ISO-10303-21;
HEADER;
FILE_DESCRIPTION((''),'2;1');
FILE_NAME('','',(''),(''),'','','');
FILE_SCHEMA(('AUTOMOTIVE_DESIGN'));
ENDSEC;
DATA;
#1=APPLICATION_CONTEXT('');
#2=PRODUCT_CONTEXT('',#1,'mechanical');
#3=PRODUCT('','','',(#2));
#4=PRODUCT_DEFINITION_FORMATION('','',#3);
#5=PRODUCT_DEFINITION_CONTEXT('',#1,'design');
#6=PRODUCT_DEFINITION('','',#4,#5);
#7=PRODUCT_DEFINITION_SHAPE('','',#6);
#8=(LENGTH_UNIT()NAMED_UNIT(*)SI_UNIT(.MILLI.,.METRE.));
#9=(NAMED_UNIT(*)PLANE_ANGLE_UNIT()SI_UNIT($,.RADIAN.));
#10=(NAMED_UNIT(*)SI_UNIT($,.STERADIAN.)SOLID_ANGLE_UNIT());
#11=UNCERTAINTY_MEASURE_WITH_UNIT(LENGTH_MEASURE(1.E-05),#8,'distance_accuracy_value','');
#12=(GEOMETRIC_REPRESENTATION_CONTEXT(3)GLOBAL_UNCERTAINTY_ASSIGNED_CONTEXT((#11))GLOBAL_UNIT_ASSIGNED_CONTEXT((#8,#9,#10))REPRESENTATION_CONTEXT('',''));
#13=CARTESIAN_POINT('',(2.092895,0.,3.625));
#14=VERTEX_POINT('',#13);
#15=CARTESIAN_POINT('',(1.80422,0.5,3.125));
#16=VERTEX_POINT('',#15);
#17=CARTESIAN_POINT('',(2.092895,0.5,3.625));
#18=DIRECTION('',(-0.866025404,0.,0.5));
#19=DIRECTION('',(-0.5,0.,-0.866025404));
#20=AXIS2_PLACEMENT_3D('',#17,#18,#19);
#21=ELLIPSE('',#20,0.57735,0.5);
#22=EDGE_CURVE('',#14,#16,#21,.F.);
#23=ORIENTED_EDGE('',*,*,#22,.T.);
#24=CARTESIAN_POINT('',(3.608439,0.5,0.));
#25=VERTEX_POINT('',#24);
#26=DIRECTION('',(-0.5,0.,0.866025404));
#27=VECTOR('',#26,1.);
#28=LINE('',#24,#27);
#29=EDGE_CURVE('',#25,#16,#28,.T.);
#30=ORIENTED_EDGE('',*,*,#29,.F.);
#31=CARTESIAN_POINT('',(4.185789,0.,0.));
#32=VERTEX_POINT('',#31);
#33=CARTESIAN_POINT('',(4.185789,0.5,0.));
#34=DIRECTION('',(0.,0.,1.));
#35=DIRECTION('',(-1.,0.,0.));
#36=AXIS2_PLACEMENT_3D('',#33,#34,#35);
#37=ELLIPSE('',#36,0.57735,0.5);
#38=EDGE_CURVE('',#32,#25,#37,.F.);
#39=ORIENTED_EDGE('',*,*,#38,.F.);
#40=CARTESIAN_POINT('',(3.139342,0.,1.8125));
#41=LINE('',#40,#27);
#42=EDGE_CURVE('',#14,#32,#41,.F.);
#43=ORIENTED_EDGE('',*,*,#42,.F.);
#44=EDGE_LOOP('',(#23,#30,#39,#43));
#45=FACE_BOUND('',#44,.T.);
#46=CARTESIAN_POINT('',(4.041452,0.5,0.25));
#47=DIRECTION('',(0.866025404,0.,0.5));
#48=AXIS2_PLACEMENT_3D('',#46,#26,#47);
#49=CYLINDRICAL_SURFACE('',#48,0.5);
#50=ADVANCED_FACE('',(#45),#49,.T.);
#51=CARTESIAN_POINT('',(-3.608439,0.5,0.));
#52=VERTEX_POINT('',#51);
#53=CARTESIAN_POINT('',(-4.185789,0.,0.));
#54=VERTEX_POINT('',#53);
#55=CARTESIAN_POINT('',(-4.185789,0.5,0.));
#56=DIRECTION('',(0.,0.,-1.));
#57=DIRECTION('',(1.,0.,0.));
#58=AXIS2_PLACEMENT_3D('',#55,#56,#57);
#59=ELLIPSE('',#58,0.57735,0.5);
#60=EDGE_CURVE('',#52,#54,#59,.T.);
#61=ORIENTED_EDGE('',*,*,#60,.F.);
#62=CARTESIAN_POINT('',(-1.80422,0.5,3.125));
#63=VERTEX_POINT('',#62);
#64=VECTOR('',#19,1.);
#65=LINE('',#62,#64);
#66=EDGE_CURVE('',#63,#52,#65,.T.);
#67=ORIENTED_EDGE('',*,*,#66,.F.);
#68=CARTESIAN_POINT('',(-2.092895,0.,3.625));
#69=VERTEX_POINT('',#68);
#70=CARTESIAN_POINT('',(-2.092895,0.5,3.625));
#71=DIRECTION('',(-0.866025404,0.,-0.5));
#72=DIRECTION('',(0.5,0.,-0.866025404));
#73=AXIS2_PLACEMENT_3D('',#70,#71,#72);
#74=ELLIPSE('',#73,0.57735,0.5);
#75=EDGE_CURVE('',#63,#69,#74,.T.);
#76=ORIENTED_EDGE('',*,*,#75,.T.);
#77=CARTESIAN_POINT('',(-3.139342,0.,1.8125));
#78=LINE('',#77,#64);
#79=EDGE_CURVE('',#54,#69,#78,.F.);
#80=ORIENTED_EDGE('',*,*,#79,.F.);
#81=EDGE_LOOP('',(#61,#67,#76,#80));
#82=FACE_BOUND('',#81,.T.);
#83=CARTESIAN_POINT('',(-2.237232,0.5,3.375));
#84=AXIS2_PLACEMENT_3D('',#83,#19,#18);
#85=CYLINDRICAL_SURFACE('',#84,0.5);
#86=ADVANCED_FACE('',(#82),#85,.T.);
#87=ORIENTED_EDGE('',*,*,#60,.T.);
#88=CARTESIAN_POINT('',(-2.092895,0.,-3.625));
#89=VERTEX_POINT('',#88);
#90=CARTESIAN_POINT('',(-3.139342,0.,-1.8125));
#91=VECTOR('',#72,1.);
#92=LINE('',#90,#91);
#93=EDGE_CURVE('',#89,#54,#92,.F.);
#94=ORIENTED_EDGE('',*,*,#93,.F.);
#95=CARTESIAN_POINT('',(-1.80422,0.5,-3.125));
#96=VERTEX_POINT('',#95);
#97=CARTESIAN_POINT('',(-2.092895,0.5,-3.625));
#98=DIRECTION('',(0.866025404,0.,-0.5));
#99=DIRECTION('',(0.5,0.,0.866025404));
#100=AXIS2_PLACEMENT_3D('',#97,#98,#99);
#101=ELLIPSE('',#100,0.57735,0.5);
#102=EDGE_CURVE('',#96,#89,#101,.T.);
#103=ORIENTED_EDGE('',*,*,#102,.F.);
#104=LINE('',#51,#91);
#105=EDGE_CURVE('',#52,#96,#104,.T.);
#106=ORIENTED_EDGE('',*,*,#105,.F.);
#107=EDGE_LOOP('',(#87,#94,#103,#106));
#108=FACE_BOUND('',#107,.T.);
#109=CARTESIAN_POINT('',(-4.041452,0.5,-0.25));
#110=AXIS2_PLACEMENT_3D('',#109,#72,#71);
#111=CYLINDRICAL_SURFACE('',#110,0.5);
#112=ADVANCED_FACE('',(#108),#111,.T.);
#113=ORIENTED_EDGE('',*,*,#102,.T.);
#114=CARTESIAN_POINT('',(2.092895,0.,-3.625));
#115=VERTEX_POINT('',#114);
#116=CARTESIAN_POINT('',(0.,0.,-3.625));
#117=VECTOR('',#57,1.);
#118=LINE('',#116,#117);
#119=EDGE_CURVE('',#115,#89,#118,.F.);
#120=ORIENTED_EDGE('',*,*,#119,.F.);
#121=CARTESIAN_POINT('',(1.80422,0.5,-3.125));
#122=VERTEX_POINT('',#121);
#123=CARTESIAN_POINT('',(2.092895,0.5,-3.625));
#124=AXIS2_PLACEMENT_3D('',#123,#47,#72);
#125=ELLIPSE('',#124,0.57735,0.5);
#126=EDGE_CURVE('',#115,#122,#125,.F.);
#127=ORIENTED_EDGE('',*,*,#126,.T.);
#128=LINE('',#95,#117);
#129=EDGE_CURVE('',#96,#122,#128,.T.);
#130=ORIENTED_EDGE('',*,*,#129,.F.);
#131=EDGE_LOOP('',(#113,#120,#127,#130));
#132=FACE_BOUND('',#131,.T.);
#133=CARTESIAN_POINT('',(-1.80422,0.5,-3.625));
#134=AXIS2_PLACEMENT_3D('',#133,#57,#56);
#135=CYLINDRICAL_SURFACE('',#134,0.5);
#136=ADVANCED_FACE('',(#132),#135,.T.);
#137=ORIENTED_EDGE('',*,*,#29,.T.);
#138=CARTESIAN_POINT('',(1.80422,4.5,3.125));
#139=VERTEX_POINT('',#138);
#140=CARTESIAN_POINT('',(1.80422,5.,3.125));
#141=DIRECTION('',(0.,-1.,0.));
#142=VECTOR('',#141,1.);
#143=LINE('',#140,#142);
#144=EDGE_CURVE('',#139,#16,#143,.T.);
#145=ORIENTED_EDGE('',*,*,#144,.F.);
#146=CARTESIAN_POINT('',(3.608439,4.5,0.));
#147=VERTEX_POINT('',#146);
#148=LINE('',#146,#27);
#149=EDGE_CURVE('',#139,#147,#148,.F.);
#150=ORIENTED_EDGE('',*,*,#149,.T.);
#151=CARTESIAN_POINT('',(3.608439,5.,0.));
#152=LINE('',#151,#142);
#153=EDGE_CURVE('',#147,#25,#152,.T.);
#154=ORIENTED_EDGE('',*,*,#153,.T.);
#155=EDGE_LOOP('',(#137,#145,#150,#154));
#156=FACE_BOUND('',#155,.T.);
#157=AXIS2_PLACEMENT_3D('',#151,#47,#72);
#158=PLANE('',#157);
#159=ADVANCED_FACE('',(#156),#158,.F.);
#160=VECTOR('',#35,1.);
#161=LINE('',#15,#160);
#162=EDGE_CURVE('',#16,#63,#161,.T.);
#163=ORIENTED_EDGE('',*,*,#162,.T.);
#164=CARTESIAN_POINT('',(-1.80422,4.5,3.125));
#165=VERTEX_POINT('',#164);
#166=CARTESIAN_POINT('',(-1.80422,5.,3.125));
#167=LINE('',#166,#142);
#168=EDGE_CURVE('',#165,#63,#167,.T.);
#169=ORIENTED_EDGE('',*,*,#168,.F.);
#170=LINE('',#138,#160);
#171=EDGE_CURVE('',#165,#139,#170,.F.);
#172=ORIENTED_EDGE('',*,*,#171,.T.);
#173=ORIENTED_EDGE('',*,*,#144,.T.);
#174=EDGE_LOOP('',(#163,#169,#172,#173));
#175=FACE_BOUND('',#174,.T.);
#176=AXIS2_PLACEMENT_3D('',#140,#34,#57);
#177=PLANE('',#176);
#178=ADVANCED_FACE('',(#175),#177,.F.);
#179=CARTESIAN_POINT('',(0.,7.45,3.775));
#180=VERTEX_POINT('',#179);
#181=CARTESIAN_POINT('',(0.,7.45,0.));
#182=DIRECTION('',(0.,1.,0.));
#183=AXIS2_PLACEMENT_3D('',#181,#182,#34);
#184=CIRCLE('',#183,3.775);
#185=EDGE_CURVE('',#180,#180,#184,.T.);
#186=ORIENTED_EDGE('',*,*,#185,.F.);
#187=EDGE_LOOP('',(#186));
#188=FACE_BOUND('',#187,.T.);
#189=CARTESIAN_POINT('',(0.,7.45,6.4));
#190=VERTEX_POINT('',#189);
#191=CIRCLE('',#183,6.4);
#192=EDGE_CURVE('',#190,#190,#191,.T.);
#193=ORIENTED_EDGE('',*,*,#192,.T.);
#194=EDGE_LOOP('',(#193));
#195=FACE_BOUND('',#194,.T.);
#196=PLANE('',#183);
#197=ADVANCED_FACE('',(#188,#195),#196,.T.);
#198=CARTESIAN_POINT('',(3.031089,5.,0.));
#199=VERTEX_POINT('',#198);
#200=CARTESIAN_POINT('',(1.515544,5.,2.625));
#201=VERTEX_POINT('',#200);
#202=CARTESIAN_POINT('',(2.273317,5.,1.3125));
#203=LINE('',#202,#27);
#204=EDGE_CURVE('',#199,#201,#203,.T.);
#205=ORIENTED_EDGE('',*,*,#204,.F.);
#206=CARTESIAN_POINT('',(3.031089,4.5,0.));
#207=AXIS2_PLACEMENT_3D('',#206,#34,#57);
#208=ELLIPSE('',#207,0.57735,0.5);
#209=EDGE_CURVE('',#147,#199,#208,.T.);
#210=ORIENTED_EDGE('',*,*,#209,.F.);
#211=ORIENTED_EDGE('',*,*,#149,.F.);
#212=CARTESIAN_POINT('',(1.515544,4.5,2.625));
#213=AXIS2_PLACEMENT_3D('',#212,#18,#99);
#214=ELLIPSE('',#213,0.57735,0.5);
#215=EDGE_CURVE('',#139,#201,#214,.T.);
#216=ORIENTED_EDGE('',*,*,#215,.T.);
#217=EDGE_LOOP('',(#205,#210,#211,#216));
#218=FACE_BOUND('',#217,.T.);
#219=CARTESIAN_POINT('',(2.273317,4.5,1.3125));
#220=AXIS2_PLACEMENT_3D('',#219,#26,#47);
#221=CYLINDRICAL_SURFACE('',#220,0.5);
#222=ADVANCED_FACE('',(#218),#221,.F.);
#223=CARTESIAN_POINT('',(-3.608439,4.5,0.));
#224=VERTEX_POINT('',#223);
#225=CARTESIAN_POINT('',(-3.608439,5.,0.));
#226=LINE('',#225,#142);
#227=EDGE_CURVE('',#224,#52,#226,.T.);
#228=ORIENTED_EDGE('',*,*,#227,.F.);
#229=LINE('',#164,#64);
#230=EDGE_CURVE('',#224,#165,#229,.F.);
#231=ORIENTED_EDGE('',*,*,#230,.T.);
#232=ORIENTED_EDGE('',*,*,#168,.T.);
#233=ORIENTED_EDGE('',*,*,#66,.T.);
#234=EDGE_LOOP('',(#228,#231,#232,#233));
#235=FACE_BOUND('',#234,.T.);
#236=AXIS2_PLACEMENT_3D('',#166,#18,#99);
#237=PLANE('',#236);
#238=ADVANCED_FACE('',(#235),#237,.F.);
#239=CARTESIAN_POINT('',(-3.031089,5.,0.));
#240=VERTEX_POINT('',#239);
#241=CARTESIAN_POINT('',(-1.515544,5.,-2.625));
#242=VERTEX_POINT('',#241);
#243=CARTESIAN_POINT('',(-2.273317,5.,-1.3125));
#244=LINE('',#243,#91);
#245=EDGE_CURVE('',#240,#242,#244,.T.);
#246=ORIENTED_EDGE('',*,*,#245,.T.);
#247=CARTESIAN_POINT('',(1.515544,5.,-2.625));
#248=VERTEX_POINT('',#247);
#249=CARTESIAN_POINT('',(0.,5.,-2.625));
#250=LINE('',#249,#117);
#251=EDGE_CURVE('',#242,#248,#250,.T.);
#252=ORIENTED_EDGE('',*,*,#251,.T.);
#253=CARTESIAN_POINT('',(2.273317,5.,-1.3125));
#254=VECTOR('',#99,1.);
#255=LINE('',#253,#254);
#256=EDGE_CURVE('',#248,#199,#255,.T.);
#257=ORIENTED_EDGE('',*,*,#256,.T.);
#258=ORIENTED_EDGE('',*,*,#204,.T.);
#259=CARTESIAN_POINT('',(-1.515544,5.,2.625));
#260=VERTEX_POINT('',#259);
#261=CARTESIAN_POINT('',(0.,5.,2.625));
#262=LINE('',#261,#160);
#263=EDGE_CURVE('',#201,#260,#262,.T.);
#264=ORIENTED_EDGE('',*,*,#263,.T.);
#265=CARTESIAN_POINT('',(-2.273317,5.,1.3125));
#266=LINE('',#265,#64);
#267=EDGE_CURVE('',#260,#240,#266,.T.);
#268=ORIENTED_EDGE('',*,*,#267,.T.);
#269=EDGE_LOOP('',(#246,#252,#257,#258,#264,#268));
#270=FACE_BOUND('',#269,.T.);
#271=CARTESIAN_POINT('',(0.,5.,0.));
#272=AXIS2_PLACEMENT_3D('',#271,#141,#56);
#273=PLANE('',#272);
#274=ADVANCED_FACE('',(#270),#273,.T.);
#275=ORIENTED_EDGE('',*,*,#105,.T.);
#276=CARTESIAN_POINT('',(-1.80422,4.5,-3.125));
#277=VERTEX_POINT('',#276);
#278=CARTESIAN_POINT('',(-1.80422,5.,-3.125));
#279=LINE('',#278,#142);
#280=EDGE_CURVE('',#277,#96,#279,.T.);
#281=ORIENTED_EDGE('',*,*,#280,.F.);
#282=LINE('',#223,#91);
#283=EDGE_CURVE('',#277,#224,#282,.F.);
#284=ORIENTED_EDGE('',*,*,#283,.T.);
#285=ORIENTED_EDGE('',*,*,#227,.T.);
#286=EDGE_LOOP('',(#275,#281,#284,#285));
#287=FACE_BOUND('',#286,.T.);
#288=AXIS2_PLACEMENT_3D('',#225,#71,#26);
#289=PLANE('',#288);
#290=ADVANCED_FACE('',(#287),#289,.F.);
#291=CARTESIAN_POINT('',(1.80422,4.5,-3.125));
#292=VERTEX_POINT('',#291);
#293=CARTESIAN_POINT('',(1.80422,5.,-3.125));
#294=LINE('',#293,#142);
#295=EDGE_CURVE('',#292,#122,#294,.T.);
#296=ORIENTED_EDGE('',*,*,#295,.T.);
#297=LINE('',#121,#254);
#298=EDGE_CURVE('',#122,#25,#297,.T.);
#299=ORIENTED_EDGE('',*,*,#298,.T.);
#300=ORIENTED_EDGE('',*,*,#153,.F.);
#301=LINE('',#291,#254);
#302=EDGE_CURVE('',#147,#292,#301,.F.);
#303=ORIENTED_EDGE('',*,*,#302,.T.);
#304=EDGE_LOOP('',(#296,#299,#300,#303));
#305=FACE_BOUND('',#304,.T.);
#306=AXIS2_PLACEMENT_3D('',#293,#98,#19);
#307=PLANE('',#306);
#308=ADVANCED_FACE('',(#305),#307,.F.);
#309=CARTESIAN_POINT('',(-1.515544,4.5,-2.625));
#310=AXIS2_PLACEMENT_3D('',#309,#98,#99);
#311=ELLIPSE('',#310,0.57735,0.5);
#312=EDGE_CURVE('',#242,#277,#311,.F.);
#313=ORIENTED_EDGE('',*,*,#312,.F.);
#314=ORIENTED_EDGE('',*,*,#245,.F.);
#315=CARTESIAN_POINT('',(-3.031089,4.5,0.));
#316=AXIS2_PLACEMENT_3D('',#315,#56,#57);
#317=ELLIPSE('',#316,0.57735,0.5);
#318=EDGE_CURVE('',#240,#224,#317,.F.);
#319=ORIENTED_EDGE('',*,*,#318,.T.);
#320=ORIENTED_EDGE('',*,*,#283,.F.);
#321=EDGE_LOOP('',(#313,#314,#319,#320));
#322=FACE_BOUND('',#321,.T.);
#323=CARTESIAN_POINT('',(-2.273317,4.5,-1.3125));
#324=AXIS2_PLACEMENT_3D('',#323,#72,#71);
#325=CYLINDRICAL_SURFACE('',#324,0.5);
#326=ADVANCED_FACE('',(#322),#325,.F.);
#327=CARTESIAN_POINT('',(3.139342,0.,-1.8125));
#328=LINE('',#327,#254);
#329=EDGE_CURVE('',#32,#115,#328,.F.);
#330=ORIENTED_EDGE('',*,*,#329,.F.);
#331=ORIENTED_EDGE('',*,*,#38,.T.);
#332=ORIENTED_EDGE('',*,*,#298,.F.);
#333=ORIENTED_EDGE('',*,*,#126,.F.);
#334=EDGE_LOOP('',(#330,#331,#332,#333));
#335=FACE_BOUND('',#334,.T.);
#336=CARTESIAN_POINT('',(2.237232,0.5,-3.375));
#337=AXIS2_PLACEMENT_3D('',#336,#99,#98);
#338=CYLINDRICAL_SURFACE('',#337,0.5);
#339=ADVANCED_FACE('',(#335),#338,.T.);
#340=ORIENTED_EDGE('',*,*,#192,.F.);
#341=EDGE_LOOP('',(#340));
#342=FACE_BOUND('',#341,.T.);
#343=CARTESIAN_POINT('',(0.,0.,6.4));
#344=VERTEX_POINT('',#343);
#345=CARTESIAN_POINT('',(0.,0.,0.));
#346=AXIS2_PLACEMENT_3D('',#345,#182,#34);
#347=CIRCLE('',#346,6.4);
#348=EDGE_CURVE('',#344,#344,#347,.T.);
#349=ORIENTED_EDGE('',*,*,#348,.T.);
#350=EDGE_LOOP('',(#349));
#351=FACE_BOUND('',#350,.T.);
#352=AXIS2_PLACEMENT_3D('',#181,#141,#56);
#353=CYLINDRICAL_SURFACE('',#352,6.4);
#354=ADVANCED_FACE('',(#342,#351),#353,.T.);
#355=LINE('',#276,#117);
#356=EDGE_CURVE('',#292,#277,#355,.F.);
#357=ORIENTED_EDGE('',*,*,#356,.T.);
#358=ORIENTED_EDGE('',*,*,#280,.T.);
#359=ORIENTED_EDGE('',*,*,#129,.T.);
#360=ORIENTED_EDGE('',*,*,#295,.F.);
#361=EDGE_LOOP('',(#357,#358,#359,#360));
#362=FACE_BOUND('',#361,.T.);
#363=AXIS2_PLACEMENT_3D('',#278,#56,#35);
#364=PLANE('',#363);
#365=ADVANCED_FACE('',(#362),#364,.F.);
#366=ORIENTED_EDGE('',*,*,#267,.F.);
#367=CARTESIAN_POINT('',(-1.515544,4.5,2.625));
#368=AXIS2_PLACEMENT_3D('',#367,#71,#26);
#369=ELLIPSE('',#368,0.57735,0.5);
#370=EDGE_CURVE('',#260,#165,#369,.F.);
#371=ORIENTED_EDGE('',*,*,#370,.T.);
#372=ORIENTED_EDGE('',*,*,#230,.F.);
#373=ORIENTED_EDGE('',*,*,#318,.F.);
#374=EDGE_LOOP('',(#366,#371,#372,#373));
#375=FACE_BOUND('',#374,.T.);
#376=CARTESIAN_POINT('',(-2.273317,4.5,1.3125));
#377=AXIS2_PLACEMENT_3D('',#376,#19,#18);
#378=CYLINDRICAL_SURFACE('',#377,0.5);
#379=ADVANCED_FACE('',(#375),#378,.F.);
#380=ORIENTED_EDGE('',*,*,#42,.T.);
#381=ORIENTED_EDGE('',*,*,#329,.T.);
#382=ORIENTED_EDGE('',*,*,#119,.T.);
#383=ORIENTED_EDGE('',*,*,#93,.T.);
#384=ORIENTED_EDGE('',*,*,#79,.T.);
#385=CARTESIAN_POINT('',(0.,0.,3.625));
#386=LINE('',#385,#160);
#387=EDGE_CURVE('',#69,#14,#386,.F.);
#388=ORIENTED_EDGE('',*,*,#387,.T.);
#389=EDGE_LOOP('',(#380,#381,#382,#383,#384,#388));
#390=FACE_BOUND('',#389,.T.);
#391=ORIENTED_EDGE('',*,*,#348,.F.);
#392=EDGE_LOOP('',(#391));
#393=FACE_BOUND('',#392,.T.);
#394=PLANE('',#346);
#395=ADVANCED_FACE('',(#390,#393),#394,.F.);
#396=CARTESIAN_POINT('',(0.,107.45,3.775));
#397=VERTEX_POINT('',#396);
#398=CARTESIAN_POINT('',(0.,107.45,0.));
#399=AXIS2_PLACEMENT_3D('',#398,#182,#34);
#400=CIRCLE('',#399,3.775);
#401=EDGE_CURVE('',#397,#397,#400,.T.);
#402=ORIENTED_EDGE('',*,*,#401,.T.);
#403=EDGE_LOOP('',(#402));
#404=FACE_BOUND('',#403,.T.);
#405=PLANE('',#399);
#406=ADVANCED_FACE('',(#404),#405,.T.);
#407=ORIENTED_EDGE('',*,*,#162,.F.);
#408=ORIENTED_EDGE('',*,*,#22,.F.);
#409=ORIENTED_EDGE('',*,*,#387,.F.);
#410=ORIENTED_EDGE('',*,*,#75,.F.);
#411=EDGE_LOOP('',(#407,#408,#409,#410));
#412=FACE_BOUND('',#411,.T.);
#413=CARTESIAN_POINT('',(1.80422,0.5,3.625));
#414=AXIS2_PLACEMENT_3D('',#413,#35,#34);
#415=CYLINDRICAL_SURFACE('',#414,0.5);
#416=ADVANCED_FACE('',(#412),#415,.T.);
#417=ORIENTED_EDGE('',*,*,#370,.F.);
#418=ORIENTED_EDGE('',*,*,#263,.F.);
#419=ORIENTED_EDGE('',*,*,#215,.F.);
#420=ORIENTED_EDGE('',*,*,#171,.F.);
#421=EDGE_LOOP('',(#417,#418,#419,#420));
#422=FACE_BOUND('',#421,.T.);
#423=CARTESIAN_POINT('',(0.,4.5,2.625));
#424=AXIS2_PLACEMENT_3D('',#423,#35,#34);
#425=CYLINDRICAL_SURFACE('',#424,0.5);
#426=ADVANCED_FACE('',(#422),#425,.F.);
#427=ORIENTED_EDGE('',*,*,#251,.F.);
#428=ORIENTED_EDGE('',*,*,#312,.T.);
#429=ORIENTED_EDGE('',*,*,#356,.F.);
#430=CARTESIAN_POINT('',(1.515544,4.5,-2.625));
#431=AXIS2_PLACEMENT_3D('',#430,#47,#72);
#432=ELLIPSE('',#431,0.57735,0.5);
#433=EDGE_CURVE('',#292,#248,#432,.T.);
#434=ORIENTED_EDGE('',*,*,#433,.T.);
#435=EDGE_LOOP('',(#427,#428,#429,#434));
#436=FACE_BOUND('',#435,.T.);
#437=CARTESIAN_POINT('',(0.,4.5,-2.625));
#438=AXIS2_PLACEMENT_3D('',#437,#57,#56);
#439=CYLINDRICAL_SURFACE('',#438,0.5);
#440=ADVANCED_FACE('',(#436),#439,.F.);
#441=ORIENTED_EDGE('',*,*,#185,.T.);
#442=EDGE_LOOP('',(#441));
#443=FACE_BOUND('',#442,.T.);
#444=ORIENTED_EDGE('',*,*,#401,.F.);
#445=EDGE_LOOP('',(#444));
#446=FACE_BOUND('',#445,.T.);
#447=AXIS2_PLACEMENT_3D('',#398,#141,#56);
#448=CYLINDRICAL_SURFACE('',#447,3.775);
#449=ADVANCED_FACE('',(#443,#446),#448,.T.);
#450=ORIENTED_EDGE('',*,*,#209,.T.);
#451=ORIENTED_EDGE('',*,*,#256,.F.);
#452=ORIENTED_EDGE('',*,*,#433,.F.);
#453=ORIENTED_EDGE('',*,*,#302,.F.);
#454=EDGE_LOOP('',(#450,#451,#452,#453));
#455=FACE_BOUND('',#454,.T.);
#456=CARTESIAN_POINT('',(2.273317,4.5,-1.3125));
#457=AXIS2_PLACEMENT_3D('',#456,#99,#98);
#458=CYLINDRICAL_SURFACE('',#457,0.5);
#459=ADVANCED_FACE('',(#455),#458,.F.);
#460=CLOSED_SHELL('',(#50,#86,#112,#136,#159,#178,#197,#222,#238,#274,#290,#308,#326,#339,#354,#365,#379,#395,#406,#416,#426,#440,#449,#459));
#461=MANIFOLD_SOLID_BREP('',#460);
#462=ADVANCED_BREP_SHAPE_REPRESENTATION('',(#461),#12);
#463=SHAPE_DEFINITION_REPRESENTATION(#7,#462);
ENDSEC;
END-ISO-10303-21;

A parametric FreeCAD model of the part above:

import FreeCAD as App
import Part
import Sketcher
Q = App.Units.Quantity


def edges_at(feature, points):
    """Names of the edges that pass closest to the given points."""
    edges = feature.Shape.Edges
    near = lambda p: min(range(len(edges)), key=lambda i: edges[i].distToShape(Part.Vertex(*p))[0])
    return sorted({f"Edge{near(p) + 1}" for p in points})


def add_polygon(sketch, points):
    """Adds a closed chain of lines whose ends are joined by coincident constraints."""
    first, n = sketch.GeometryCount, len(points)
    for a, b in zip(points, points[1:] + points[:1]):
        sketch.addGeometry(Part.LineSegment(App.Vector(*a, 0), App.Vector(*b, 0)), False)
    for i in range(n):
        sketch.addConstraint(Sketcher.Constraint("Coincident", first + i, 2, first + (i + 1) % n, 1))

doc = App.newDocument("Part")
body = doc.addObject("PartDesign::Body", "Body")

# Sketch on XZ plane
sketch1 = body.newObject("Sketcher::SketchObject", "Sketch")
sketch1.AttachmentSupport = (doc.getObject("XZ_Plane"), [""])
sketch1.MapMode = "FlatFace"
sketch1.addGeometry(Part.Circle(App.Vector(0, 0, 0), App.Vector(0, 0, 1), 6.4), False)
sketch1.addConstraint([
    Sketcher.Constraint("Coincident", 0, 3, -1, 1),
    Sketcher.Constraint("Diameter", 0, Q("12.8 mm")),
])
pad1 = body.newObject("PartDesign::Pad", "Pad")
pad1.Profile = sketch1
pad1.Length = 7.45
pad1.Reversed = True

# Sketch on XZ plane
sketch2 = body.newObject("Sketcher::SketchObject", "Sketch001")
sketch2.AttachmentSupport = (doc.getObject("XZ_Plane"), [""])
sketch2.MapMode = "FlatFace"
sketch2.AttachmentOffset = App.Placement(App.Vector(0, 0, -7.45), App.Rotation())
sketch2.addGeometry(Part.Circle(App.Vector(0, 0, 0), App.Vector(0, 0, 1), 3.775), False)
sketch2.addConstraint([
    Sketcher.Constraint("Coincident", 0, 3, -1, 1),
    Sketcher.Constraint("Diameter", 0, Q("7.55 mm")),
])
pad2 = body.newObject("PartDesign::Pad", "Pad001")
pad2.Profile = sketch2
pad2.Length = 100
pad2.Reversed = True

# Sketch on XZ plane
sketch3 = body.newObject("Sketcher::SketchObject", "Sketch002")
sketch3.AttachmentSupport = (doc.getObject("XZ_Plane"), [""])
sketch3.MapMode = "FlatFace"
add_polygon(sketch3, [(-3.608439, 0), (-1.80422, -3.125), (1.80422, -3.125), (3.608439, 0), (1.80422, 3.125), (-1.80422, 3.125)])  # lines 0-5
sketch3.addConstraint([
    Sketcher.Constraint("Horizontal", 1),
    Sketcher.Constraint("Horizontal", 4),
    Sketcher.Constraint("Symmetric", 0, 2, 3, 2, -1, 1),
    Sketcher.Constraint("Symmetric", 2, 2, 5, 2, -1, 1),
    Sketcher.Constraint("PointOnObject", 2, 2, -1),
    Sketcher.Constraint("Parallel", 2, 5),
    Sketcher.Constraint("Vertical", 1, 2, 3, 2),
    Sketcher.Constraint("Angle", 0, Q("-60 deg")),
    Sketcher.Constraint("DistanceY", 1, 2, 3, 2, Q("6.25 mm")),
    Sketcher.Constraint("DistanceX", 1, 1, 1, 2, Q("3.608439 mm")),
])
pocket1 = body.newObject("PartDesign::Pocket", "Pocket")
pocket1.Profile = sketch3
pocket1.Length = 5
doc.recompute()

fillet = body.newObject("PartDesign::Fillet", "Fillet")
fillet.Base = (pocket1, edges_at(pocket1, [
    (-2.706, 0, 1.562),
    (-2.706, 0, -1.562),
    (0, 0, -3.125),
    (2.706, 0, -1.562),
    (2.706, 0, 1.562),
    (0, 0, 3.125),
]))
fillet.Radius = 0.5
doc.recompute()

fillet2 = body.newObject("PartDesign::Fillet", "Fillet001")
fillet2.Base = (fillet, edges_at(fillet, [
    (-2.706, 5, 1.562),
    (0, 5, 3.125),
    (2.706, 5, 1.562),
    (2.706, 5, -1.562),
    (0, 5, -3.125),
    (-2.706, 5, -1.562),
]))
fillet2.Radius = 0.5

doc.recompute()
